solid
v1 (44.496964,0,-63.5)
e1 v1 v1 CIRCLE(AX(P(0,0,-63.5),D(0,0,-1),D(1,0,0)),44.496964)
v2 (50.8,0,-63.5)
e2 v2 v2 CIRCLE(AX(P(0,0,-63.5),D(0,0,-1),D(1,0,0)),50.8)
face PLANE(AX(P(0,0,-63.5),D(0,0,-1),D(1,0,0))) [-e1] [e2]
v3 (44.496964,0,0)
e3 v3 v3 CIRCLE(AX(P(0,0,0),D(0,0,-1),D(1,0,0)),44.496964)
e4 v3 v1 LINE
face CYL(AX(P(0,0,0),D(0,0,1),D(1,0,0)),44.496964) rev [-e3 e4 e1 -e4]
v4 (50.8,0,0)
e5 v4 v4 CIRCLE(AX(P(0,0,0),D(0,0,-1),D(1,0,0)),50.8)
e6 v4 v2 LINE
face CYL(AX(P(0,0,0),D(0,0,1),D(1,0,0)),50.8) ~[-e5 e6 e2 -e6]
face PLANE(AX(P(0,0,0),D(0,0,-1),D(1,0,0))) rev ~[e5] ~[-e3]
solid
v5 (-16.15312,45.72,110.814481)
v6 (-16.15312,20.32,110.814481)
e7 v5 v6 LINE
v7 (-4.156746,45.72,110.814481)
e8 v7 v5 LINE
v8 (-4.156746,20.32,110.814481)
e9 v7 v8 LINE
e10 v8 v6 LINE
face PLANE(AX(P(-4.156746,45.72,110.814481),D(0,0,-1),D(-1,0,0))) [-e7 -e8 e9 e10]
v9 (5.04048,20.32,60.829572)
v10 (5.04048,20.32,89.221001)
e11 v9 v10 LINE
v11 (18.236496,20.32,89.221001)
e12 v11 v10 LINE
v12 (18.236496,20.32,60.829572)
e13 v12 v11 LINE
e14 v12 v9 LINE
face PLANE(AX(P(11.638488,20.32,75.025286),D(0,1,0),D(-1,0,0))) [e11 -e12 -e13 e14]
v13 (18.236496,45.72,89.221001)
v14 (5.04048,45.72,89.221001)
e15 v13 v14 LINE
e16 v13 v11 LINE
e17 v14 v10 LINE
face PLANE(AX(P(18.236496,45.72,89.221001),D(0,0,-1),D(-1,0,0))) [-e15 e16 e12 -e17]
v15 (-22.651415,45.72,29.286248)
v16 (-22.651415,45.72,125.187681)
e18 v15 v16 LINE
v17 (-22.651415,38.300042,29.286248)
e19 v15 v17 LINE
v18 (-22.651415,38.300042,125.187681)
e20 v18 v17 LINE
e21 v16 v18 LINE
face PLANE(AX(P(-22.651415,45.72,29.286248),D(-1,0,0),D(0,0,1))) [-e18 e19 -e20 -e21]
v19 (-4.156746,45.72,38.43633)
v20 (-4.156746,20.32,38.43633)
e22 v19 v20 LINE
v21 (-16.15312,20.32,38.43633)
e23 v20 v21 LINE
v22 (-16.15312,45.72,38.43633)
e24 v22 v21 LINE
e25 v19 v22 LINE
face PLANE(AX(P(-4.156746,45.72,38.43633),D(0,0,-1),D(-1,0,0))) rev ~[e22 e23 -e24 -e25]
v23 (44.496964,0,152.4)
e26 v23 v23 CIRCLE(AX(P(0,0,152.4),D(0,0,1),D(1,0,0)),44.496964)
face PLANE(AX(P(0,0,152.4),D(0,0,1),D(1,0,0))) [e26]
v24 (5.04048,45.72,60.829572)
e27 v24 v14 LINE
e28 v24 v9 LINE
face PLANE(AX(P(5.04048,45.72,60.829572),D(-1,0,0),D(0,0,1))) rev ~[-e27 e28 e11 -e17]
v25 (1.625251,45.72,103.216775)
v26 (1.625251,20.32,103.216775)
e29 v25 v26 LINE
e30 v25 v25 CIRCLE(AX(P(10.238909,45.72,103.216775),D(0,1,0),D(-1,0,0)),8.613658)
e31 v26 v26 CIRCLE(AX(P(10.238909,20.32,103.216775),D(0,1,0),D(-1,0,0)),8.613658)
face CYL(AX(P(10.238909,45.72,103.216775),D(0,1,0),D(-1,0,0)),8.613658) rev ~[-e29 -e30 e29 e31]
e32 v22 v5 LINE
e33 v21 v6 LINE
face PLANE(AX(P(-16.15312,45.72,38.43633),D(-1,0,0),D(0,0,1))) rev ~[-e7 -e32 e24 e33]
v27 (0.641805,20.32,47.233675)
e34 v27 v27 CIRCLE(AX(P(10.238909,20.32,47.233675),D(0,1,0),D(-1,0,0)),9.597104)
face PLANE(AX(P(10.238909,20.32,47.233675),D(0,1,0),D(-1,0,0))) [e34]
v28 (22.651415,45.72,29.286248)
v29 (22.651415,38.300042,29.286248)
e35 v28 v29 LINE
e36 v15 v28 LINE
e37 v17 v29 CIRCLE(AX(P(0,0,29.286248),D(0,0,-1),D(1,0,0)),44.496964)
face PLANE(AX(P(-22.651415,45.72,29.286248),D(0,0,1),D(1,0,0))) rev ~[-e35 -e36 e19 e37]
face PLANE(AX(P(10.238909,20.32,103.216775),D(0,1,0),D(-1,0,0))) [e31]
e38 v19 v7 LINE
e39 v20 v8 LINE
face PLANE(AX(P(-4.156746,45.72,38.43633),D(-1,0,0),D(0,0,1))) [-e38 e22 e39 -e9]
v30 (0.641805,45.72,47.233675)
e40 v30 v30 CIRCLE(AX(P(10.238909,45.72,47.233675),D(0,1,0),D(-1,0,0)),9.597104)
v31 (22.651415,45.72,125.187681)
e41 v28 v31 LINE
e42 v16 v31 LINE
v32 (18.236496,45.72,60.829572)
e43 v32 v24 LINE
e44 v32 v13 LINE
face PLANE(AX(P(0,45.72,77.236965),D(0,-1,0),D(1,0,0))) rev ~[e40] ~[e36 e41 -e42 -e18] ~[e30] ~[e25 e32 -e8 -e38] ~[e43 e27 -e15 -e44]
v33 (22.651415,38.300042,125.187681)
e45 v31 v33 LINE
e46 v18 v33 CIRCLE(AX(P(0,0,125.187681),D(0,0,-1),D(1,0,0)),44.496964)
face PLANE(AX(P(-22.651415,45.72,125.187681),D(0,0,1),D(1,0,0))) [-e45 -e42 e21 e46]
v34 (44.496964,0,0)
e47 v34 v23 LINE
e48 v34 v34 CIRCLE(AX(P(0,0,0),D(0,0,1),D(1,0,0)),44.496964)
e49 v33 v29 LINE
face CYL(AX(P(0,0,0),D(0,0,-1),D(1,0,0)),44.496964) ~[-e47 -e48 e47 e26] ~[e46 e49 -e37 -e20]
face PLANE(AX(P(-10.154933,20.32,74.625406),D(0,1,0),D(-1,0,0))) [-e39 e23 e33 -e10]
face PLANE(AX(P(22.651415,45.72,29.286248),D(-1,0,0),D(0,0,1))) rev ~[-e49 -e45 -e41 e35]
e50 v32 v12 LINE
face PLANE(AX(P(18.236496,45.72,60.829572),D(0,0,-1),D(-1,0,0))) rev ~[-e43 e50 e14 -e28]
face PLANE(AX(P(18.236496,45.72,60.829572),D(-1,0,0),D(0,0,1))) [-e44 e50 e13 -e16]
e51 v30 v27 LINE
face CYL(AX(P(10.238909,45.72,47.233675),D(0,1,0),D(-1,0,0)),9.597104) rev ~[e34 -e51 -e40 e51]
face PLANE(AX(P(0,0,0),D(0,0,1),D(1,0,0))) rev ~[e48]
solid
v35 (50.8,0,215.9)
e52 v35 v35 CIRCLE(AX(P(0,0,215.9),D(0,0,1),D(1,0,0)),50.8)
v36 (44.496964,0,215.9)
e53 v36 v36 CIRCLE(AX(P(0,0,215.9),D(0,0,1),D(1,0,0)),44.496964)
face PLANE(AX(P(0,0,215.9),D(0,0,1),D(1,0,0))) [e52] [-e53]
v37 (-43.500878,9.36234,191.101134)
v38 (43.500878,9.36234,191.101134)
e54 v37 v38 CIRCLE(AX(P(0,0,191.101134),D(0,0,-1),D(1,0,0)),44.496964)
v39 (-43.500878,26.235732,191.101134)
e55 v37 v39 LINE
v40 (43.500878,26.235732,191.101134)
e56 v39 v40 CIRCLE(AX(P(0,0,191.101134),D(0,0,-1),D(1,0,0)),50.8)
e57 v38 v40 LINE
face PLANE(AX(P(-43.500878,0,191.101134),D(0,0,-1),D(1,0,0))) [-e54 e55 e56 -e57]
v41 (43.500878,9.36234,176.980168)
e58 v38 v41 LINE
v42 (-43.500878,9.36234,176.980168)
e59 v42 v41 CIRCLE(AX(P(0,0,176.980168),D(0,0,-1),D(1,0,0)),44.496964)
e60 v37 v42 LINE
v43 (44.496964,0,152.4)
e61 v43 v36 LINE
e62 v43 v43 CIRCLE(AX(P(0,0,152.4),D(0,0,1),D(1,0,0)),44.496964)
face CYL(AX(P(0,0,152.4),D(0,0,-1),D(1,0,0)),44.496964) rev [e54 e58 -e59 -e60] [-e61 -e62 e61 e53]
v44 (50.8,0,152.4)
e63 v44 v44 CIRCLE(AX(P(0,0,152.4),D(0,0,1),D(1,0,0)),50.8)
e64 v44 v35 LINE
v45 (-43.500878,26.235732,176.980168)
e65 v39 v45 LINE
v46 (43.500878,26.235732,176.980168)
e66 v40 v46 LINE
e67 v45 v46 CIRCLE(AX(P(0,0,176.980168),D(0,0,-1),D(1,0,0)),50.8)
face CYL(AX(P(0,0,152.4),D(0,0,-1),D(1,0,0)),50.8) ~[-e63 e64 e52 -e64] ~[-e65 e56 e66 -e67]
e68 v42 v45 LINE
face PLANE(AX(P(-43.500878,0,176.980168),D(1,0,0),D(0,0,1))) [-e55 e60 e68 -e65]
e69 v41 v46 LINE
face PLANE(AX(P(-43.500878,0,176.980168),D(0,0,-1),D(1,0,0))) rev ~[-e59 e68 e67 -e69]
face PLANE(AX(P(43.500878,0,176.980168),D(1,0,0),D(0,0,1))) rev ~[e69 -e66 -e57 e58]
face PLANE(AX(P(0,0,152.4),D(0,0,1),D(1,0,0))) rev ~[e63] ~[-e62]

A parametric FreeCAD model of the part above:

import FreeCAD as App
import Part
import Sketcher
from FreeCAD import Vector
Q = App.Units.Quantity

doc = App.newDocument("Part")
params = doc.addObject("Spreadsheet::Sheet", "Params")
for row, (alias, value) in enumerate([
    ("pad1_length", "6 in"),
    ("pad2_length", "1 in"),
    ("pocket1_length", "1 in"),
    ("sketch4_diameter", "4 in"),
    ("pad3_length", "2.5 in"),
    ("sketch5_diameter", "4 in"),
    ("pad4_length", "2.5 in"),
    ("pocket2_length", "2.61 in"),
], start=1):
    params.set(f"A{row}", alias)
    params.set(f"B{row}", "=" + value)
    params.setAlias(f"B{row}", alias)

body = doc.addObject("PartDesign::Body", "Body")

# Sketch on XY plane
sketch1 = doc.addObject("Sketcher::SketchObject", "Sketch")
body.addObject(sketch1)
sketch1.AttachmentSupport = (doc.XY_Plane, [""])
sketch1.MapMode = "FlatFace"
sketch1.addGeometry(Part.Circle(Vector(0, 0, 0), Vector(0, 0, 1), 44), False)
sketch1.addConstraint(Sketcher.Constraint("Coincident", 0, 3, -1, 1))
sketch1.addConstraint(Sketcher.Constraint("Diameter", 0, 88.993928))
pad1 = doc.addObject("PartDesign::Pad", "Pad")
body.addObject(pad1)
pad1.Profile = sketch1
pad1.setExpression("Length", "Params.pad1_length")

# Sketch on XZ plane
sketch2 = doc.addObject("Sketcher::SketchObject", "Sketch001")
body.addObject(sketch2)
sketch2.AttachmentSupport = (doc.XZ_Plane, [""])
sketch2.MapMode = "FlatFace"
sketch2.AttachmentOffset = App.Placement(Vector(0, 0, -1.8 * 25.4), App.Rotation())
sketch2.addGeometry(Part.LineSegment(Vector(-23, 125, 0), Vector(-23, 29, 0)), False)
sketch2.addGeometry(Part.LineSegment(Vector(-23, 29, 0), Vector(23, 29, 0)), False)
sketch2.addGeometry(Part.LineSegment(Vector(23, 29, 0), Vector(23, 125, 0)), False)
sketch2.addGeometry(Part.LineSegment(Vector(23, 125, 0), Vector(-23, 125, 0)), False)
sketch2.addConstraint(Sketcher.Constraint("Coincident", 0, 2, 1, 1))
sketch2.addConstraint(Sketcher.Constraint("Coincident", 1, 2, 2, 1))
sketch2.addConstraint(Sketcher.Constraint("Coincident", 2, 2, 3, 1))
sketch2.addConstraint(Sketcher.Constraint("Coincident", 3, 2, 0, 1))
sketch2.addConstraint(Sketcher.Constraint("Vertical", 0))
sketch2.addConstraint(Sketcher.Constraint("Horizontal", 1))
sketch2.addConstraint(Sketcher.Constraint("Vertical", 2))
sketch2.addConstraint(Sketcher.Constraint("Horizontal", 3))
sketch2.addConstraint(Sketcher.Constraint("DistanceX", 1, 1, 1, 2, 45.30283))
sketch2.addConstraint(Sketcher.Constraint("DistanceY", 0, 2, 0, 1, 95.901433))
sketch2.addConstraint(Sketcher.Constraint("DistanceY", -1, 1, 0, 2, 29.286248))
sketch2.addConstraint(Sketcher.Constraint("DistanceX", 0, 2, -1, 1, 22.651415))
pad2 = doc.addObject("PartDesign::Pad", "Pad001")
body.addObject(pad2)
pad2.Profile = sketch2
pad2.setExpression("Length", "Params.pad2_length")

# Sketch on XZ plane
sketch3 = doc.addObject("Sketcher::SketchObject", "Sketch002")
body.addObject(sketch3)
sketch3.AttachmentSupport = (doc.XZ_Plane, [""])
sketch3.MapMode = "FlatFace"
sketch3.AttachmentOffset = App.Placement(Vector(0, 0, -1.8 * 25.4), App.Rotation())
sketch3.addGeometry(Part.Circle(Vector(10, 103, 0), Vector(0, 0, 1), 9), False)
sketch3.addGeometry(Part.Circle(Vector(10, 47, 0), Vector(0, 0, 1), 10), False)
sketch3.addGeometry(Part.LineSegment(Vector(18, 89, 0), Vector(18, 61, 0)), False)
sketch3.addGeometry(Part.LineSegment(Vector(18, 61, 0), Vector(5, 61, 0)), False)
sketch3.addGeometry(Part.LineSegment(Vector(5, 61, 0), Vector(5, 89, 0)), False)
sketch3.addGeometry(Part.LineSegment(Vector(5, 89, 0), Vector(18, 89, 0)), False)
sketch3.addGeometry(Part.LineSegment(Vector(-4, 111, 0), Vector(-4, 38, 0)), False)
sketch3.addGeometry(Part.LineSegment(Vector(-4, 38, 0), Vector(-16, 38, 0)), False)
sketch3.addGeometry(Part.LineSegment(Vector(-16, 38, 0), Vector(-16, 111, 0)), False)
sketch3.addGeometry(Part.LineSegment(Vector(-16, 111, 0), Vector(-4, 111, 0)), False)
sketch3.addConstraint(Sketcher.Constraint("Coincident", 2, 2, 3, 1))
sketch3.addConstraint(Sketcher.Constraint("Coincident", 3, 2, 4, 1))
sketch3.addConstraint(Sketcher.Constraint("Coincident", 4, 2, 5, 1))
sketch3.addConstraint(Sketcher.Constraint("Coincident", 5, 2, 2, 1))
sketch3.addConstraint(Sketcher.Constraint("Coincident", 6, 2, 7, 1))
sketch3.addConstraint(Sketcher.Constraint("Coincident", 7, 2, 8, 1))
sketch3.addConstraint(Sketcher.Constraint("Coincident", 8, 2, 9, 1))
sketch3.addConstraint(Sketcher.Constraint("Coincident", 9, 2, 6, 1))
sketch3.addConstraint(Sketcher.Constraint("Vertical", 2))
sketch3.addConstraint(Sketcher.Constraint("Horizontal", 3))
sketch3.addConstraint(Sketcher.Constraint("Vertical", 4))
sketch3.addConstraint(Sketcher.Constraint("Horizontal", 5))
sketch3.addConstraint(Sketcher.Constraint("Vertical", 6))
sketch3.addConstraint(Sketcher.Constraint("Horizontal", 7))
sketch3.addConstraint(Sketcher.Constraint("Vertical", 8))
sketch3.addConstraint(Sketcher.Constraint("Horizontal", 9))
sketch3.addConstraint(Sketcher.Constraint("Vertical", 0, 3, 1, 3))
sketch3.addConstraint(Sketcher.Constraint("Diameter", 0, 17.227316))
sketch3.addConstraint(Sketcher.Constraint("Diameter", 1, 19.194208))
sketch3.addConstraint(Sketcher.Constraint("DistanceY", 2, 2, 2, 1, 28.391429))
sketch3.addConstraint(Sketcher.Constraint("DistanceY", 6, 2, 6, 1, 72.378151))
sketch3.addConstraint(Sketcher.Constraint("DistanceY", -1, 1, 4, 2, 89.221001))
sketch3.addConstraint(Sketcher.Constraint("DistanceY", 1, 3, 0, 3, 55.9831))
sketch3.addConstraint(Sketcher.Constraint("DistanceX", 7, 2, 3, 2, 21.1936))
sketch3.addConstraint(Sketcher.Constraint("DistanceX", 3, 2, 3, 1, 13.196016))
sketch3.addConstraint(Sketcher.Constraint("DistanceX", 7, 2, 7, 1, 11.996375))
sketch3.addConstraint(Sketcher.Constraint("DistanceX", -1, 1, 0, 3, 10.238909))
sketch3.addConstraint(Sketcher.Constraint("DistanceX", -1, 1, 3, 2, 5.04048))
sketch3.addConstraint(Sketcher.Constraint("DistanceY", -1, 1, 6, 2, 38.43633))
sketch3.addConstraint(Sketcher.Constraint("DistanceY", -1, 1, 0, 3, 103.216775))
pocket1 = doc.addObject("PartDesign::Pocket", "Pocket")
body.addObject(pocket1)
pocket1.Profile = sketch3
pocket1.setExpression("Length", "Params.pocket1_length")
pocket1.Reversed = True
body2 = doc.addObject("PartDesign::Body", "Body001")

# Sketch on XY plane
sketch4 = doc.addObject("Sketcher::SketchObject", "Sketch003")
body2.addObject(sketch4)
sketch4.AttachmentSupport = (doc.getObject("XY_Plane001"), [""])
sketch4.MapMode = "FlatFace"
sketch4.addGeometry(Part.Circle(Vector(0, 0, 0), Vector(0, 0, 1), 51), False)
sketch4.addGeometry(Part.Circle(Vector(0, 0, 0), Vector(0, 0, 1), 44), False)
sketch4.addConstraint(Sketcher.Constraint("Coincident", 0, 3, -1, 1))
sketch4.addConstraint(Sketcher.Constraint("Coincident", 1, 3, -1, 1))
sketch4.addConstraint(Sketcher.Constraint("Diameter", 0, Q("4 in")))
sketch4.addConstraint(Sketcher.Constraint("Diameter", 1, 88.993928))
sketch4.setExpression("Constraints[2]", "Params.sketch4_diameter")
pad3 = doc.addObject("PartDesign::Pad", "Pad002")
body2.addObject(pad3)
pad3.Profile = sketch4
pad3.setExpression("Length", "Params.pad3_length")
pad3.Reversed = True
body3 = doc.addObject("PartDesign::Body", "Body002")

# Sketch on XY plane
sketch5 = doc.addObject("Sketcher::SketchObject", "Sketch004")
body3.addObject(sketch5)
sketch5.AttachmentSupport = (doc.getObject("XY_Plane002"), [""])
sketch5.MapMode = "FlatFace"
sketch5.AttachmentOffset = App.Placement(Vector(0, 0, 6 * 25.4), App.Rotation())
sketch5.addGeometry(Part.Circle(Vector(0, 0, 0), Vector(0, 0, 1), 51), False)
sketch5.addGeometry(Part.Circle(Vector(0, 0, 0), Vector(0, 0, 1), 44), False)
sketch5.addConstraint(Sketcher.Constraint("Coincident", 0, 3, -1, 1))
sketch5.addConstraint(Sketcher.Constraint("Coincident", 1, 3, -1, 1))
sketch5.addConstraint(Sketcher.Constraint("Diameter", 0, Q("4 in")))
sketch5.addConstraint(Sketcher.Constraint("Diameter", 1, 88.993928))
sketch5.setExpression("Constraints[2]", "Params.sketch5_diameter")
pad4 = doc.addObject("PartDesign::Pad", "Pad003")
body3.addObject(pad4)
pad4.Profile = sketch5
pad4.setExpression("Length", "Params.pad4_length")

# Sketch on XZ plane
sketch6 = doc.addObject("Sketcher::SketchObject", "Sketch005")
body3.addObject(sketch6)
sketch6.AttachmentSupport = (doc.getObject("XZ_Plane002"), [""])
sketch6.MapMode = "FlatFace"
sketch6.addGeometry(Part.LineSegment(Vector(-44, 191, 0), Vector(-44, 177, 0)), False)
sketch6.addGeometry(Part.LineSegment(Vector(-44, 177, 0), Vector(44, 177, 0)), False)
sketch6.addGeometry(Part.LineSegment(Vector(44, 177, 0), Vector(44, 191, 0)), False)
sketch6.addGeometry(Part.LineSegment(Vector(44, 191, 0), Vector(-44, 191, 0)), False)
sketch6.addConstraint(Sketcher.Constraint("Coincident", 0, 2, 1, 1))
sketch6.addConstraint(Sketcher.Constraint("Coincident", 1, 2, 2, 1))
sketch6.addConstraint(Sketcher.Constraint("Coincident", 2, 2, 3, 1))
sketch6.addConstraint(Sketcher.Constraint("Coincident", 3, 2, 0, 1))
sketch6.addConstraint(Sketcher.Constraint("Vertical", 0))
sketch6.addConstraint(Sketcher.Constraint("Horizontal", 1))
sketch6.addConstraint(Sketcher.Constraint("Vertical", 2))
sketch6.addConstraint(Sketcher.Constraint("Horizontal", 3))
sketch6.addConstraint(Sketcher.Constraint("DistanceX", 1, 1, 1, 2, 87.001756))
sketch6.addConstraint(Sketcher.Constraint("DistanceY", 0, 2, 0, 1, 14.120966))
sketch6.addConstraint(Sketcher.Constraint("DistanceY", -1, 1, 0, 2, 176.980168))
sketch6.addConstraint(Sketcher.Constraint("DistanceX", 0, 2, -1, 1, 43.500878))
pocket2 = doc.addObject("PartDesign::Pocket", "Pocket001")
body3.addObject(pocket2)
pocket2.Profile = sketch6
pocket2.setExpression("Length", "Params.pocket2_length")

doc.recompute()
